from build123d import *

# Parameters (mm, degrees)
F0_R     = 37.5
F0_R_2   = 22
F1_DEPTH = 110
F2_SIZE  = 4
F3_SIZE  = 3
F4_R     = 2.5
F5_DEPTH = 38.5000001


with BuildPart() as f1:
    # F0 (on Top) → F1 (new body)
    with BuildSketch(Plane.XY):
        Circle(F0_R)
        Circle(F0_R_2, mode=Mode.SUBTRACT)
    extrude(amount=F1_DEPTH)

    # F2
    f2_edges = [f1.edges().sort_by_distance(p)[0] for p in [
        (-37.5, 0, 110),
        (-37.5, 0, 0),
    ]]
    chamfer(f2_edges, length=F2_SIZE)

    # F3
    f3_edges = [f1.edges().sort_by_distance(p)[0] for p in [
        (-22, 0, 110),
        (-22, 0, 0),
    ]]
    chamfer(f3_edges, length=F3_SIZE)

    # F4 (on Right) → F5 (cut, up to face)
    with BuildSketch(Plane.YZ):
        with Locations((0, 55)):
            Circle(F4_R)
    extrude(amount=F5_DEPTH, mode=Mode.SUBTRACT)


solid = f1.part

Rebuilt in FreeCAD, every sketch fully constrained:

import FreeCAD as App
import Part
import Sketcher

V = App.Vector


def edges_at(feature, points):
    """Names of the edges that pass closest to the given points."""
    edges = feature.Shape.Edges
    near = lambda p: min(range(len(edges)), key=lambda i: edges[i].distToShape(Part.Vertex(*p))[0])
    return sorted({f"Edge{near(p) + 1}" for p in points})

doc = App.newDocument("Part")
body = doc.addObject("PartDesign::Body", "Body")

sketch1 = doc.addObject("Sketcher::SketchObject", "Sketch")
body.addObject(sketch1)
sketch1.AttachmentSupport = (doc.XY_Plane, [""])
sketch1.MapMode = "FlatFace"
sketch1.addGeometry(Part.Circle(V(0, 0, 0), V(0, 0, 1), 38), False)
sketch1.addGeometry(Part.Circle(V(0, 0, 0), V(0, 0, 1), 22), False)
sketch1.addConstraint(Sketcher.Constraint("Coincident", 0, 3, -1, 1))
sketch1.addConstraint(Sketcher.Constraint("Coincident", 1, 3, -1, 1))
sketch1.addConstraint(Sketcher.Constraint("Diameter", 0, 75.0))
sketch1.addConstraint(Sketcher.Constraint("Diameter", 1, 44.0))
pad1 = doc.addObject("PartDesign::Pad", "Pad")
body.addObject(pad1)
pad1.Profile = sketch1
pad1.Length = 110
doc.recompute()

chamfer = doc.addObject("PartDesign::Chamfer", "Chamfer")
body.addObject(chamfer)
chamfer.Base = (pad1, edges_at(pad1, [(-37.5, 0, 110), (-37.5, 0, 0)]))
chamfer.Size = 4
doc.recompute()

chamfer2 = doc.addObject("PartDesign::Chamfer", "Chamfer001")
body.addObject(chamfer2)
chamfer2.Base = (chamfer, edges_at(chamfer, [(-22, 0, 110), (-22, 0, 0)]))
chamfer2.Size = 3

sketch2 = doc.addObject("Sketcher::SketchObject", "Sketch001")
body.addObject(sketch2)
sketch2.AttachmentSupport = (doc.YZ_Plane, [""])
sketch2.MapMode = "FlatFace"
sketch2.addGeometry(Part.Circle(V(0, 55, 0), V(0, 0, 1), 2.5), False)
sketch2.addConstraint(Sketcher.Constraint("PointOnObject", 0, 3, -2))
sketch2.addConstraint(Sketcher.Constraint("Diameter", 0, 5.0))
sketch2.addConstraint(Sketcher.Constraint("DistanceY", -1, 1, 0, 3, 55.0))
pocket1 = doc.addObject("PartDesign::Pocket", "Pocket")
body.addObject(pocket1)
pocket1.Profile = sketch2
pocket1.Length = 38.5
pocket1.Reversed = True

doc.recompute()
